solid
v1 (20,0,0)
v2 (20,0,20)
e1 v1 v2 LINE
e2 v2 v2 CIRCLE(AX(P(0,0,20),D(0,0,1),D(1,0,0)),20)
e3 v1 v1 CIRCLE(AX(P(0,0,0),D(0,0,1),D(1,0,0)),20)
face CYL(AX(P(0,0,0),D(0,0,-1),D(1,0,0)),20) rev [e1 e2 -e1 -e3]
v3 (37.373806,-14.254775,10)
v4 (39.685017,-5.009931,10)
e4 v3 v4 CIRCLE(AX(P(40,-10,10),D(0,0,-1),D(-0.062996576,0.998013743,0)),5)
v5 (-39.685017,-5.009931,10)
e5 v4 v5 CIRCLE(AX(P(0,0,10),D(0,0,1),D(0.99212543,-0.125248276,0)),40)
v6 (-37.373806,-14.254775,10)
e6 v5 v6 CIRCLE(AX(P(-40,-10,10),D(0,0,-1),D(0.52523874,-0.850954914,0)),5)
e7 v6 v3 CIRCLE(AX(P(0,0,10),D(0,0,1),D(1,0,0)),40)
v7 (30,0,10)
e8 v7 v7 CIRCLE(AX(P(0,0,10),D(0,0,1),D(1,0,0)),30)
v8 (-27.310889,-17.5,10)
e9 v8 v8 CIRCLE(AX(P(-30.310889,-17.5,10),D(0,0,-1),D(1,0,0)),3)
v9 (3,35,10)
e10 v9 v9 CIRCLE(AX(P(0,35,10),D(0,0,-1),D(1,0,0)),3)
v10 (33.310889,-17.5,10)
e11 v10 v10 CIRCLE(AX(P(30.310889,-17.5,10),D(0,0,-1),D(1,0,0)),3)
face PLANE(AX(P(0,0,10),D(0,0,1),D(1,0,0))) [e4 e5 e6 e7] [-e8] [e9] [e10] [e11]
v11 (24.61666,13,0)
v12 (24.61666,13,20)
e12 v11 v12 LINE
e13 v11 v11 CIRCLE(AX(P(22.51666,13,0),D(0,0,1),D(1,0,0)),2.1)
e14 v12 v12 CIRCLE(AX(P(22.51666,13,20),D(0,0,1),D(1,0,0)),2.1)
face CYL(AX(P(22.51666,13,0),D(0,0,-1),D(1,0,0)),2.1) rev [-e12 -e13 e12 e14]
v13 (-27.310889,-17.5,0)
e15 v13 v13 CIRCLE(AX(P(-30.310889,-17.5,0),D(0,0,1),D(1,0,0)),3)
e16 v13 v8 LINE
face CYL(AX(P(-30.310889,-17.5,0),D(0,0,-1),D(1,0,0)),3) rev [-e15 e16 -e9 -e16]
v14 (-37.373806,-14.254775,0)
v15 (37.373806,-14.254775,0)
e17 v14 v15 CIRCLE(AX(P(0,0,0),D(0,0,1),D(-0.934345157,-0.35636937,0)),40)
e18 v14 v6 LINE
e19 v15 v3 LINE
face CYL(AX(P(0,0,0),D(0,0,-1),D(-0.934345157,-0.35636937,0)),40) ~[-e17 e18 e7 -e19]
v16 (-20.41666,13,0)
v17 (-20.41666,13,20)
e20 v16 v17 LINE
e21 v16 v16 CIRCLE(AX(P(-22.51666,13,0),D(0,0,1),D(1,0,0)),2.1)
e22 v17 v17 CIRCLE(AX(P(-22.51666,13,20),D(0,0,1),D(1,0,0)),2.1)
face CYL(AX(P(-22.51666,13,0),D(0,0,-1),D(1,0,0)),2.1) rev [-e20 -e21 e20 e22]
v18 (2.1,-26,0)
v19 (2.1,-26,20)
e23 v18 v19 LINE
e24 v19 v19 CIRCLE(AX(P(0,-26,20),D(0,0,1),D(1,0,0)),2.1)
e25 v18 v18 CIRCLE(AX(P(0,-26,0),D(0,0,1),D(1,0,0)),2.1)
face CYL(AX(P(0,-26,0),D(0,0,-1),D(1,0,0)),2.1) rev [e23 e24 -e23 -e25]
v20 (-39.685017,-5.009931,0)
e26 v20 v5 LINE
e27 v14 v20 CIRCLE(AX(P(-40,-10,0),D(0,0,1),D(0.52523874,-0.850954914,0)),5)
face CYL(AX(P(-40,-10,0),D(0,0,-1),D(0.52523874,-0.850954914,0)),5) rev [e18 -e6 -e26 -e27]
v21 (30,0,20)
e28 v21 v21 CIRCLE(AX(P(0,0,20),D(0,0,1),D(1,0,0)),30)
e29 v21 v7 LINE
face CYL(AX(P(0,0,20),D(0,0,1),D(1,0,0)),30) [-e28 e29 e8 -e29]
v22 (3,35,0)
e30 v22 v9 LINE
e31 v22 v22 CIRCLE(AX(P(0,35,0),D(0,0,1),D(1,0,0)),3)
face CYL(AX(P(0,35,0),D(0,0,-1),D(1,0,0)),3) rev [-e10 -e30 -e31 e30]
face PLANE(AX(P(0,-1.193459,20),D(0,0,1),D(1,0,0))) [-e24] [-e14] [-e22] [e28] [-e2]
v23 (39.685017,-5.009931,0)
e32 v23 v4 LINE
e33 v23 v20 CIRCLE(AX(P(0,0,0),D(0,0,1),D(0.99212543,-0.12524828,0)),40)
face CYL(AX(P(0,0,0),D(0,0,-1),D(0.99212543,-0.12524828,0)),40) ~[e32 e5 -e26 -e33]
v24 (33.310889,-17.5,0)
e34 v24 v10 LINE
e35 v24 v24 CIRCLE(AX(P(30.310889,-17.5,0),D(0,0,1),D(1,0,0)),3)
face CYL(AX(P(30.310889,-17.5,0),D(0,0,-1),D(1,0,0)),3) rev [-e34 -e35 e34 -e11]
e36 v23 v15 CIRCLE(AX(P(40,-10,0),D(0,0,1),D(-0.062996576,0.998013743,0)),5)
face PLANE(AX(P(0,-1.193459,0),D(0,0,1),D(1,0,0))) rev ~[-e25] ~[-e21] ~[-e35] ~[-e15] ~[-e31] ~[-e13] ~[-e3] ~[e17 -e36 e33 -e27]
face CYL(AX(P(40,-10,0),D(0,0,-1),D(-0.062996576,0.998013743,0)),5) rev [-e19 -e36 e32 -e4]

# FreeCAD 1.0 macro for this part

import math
import FreeCAD as App
import Part
import Sketcher

V = App.Vector
Q = App.Units.Quantity

doc = App.newDocument("Part")
body = doc.addObject("PartDesign::Body", "Body")

sketch1 = body.newObject("Sketcher::SketchObject", "Sketch")
sketch1.AttachmentSupport = (doc.getObject("XY_Plane"), [""])
sketch1.MapMode = "FlatFace"
sketch1.addGeometry(Part.ArcOfCircle(Part.Circle(V(0, 0, 0), V(0, 0, 1), 40), math.radians(-159), math.radians(-21)), False)
sketch1.addGeometry(Part.ArcOfCircle(Part.Circle(V(40, -10, 0), V(0, 0, 1), 5), math.radians(94), math.radians(238)), False)
sketch1.addGeometry(Part.ArcOfCircle(Part.Circle(V(0, 0, 0), V(0, 0, 1), 40), math.radians(-7), math.radians(187)), False)
sketch1.addGeometry(Part.ArcOfCircle(Part.Circle(V(-40, -10, 0), V(0, 0, 1), 5), math.radians(-58), math.radians(86)), False)
sketch1.addGeometry(Part.Circle(V(-30.3, -17.5, 0), V(0, 0, 1), 3), False)
sketch1.addGeometry(Part.Circle(V(0, -26, 0), V(0, 0, 1), 2.1), False)
sketch1.addGeometry(Part.Circle(V(30.3, -17.5, 0), V(0, 0, 1), 3), False)
sketch1.addGeometry(Part.Circle(V(0, 0, 0), V(0, 0, 1), 20), False)
sketch1.addGeometry(Part.Circle(V(-22.5, 13, 0), V(0, 0, 1), 2.1), False)
sketch1.addGeometry(Part.Circle(V(22.5, 13, 0), V(0, 0, 1), 2.1), False)
sketch1.addGeometry(Part.Circle(V(0, 35, 0), V(0, 0, 1), 3), False)
sketch1.addConstraint(Sketcher.Constraint("Coincident", 0, 2, 1, 2))
sketch1.addConstraint(Sketcher.Constraint("Coincident", 1, 1, 2, 1))
sketch1.addConstraint(Sketcher.Constraint("Coincident", 2, 2, 3, 2))
sketch1.addConstraint(Sketcher.Constraint("Coincident", 3, 1, 0, 1))
sketch1.addConstraint(Sketcher.Constraint("Coincident", 0, 3, -1, 1))
sketch1.addConstraint(Sketcher.Constraint("Coincident", 2, 3, -1, 1))
sketch1.addConstraint(Sketcher.Constraint("Coincident", 7, 3, -1, 1))
sketch1.addConstraint(Sketcher.Constraint("Equal", 0, 2))
sketch1.addConstraint(Sketcher.Constraint("Equal", 1, 3))
sketch1.addConstraint(Sketcher.Constraint("Equal", 4, 6))
sketch1.addConstraint(Sketcher.Constraint("Equal", 5, 8))
sketch1.addConstraint(Sketcher.Constraint("Equal", 8, 9))
sketch1.addConstraint(Sketcher.Constraint("Equal", 6, 10))
sketch1.addConstraint(Sketcher.Constraint("Symmetric", 1, 3, 3, 3, -2))
sketch1.addConstraint(Sketcher.Constraint("Symmetric", 4, 3, 6, 3, -2))
sketch1.addConstraint(Sketcher.Constraint("Symmetric", 8, 3, 9, 3, -2))
sketch1.addConstraint(Sketcher.Constraint("PointOnObject", 5, 3, -2))
sketch1.addConstraint(Sketcher.Constraint("PointOnObject", 10, 3, -2))
sketch1.addConstraint(Sketcher.Constraint("Diameter", 4, Q("6 mm")))
sketch1.addConstraint(Sketcher.Constraint("Diameter", 7, Q("40 mm")))
sketch1.addConstraint(Sketcher.Constraint("Radius", 0, Q("40 mm")))
sketch1.addConstraint(Sketcher.Constraint("Radius", 1, Q("5 mm")))
sketch1.addConstraint(Sketcher.Constraint("Diameter", 5, Q("4.2 mm")))
sketch1.addConstraint(Sketcher.Constraint("DistanceX", -1, 1, 1, 3, Q("40 mm")))
sketch1.addConstraint(Sketcher.Constraint("DistanceY", 1, 3, -1, 1, Q("10 mm")))
sketch1.addConstraint(Sketcher.Constraint("DistanceY", 5, 3, -1, 1, Q("26 mm")))
sketch1.addConstraint(Sketcher.Constraint("DistanceY", -1, 1, 8, 3, Q("13 mm")))
sketch1.addConstraint(Sketcher.Constraint("DistanceY", -1, 1, 10, 3, Q("35 mm")))
sketch1.addConstraint(Sketcher.Constraint("DistanceY", 4, 3, -1, 1, Q("17.5 mm")))
sketch1.addConstraint(Sketcher.Constraint("DistanceX", 4, 3, -1, 1, Q("30.310889 mm")))
sketch1.addConstraint(Sketcher.Constraint("DistanceX", 8, 3, -1, 1, Q("22.51666 mm")))
pad1 = body.newObject("PartDesign::Pad", "Pad")
pad1.Profile = sketch1
pad1.Length = 20

sketch2 = body.newObject("Sketcher::SketchObject", "Sketch001")
sketch2.AttachmentSupport = (doc.getObject("XY_Plane"), [""])
sketch2.MapMode = "FlatFace"
sketch2.AttachmentOffset = App.Placement(V(0, 0, 20), App.Rotation())
sketch2.addGeometry(Part.Circle(V(0, 0, 0), V(0, 0, 1), 40), False)
sketch2.addGeometry(Part.Circle(V(0, 0, 0), V(0, 0, 1), 30), False)
sketch2.addConstraint(Sketcher.Constraint("Coincident", 0, 3, -1, 1))
sketch2.addConstraint(Sketcher.Constraint("Coincident", 1, 3, -1, 1))
sketch2.addConstraint(Sketcher.Constraint("Diameter", 0, Q("80 mm")))
sketch2.addConstraint(Sketcher.Constraint("Diameter", 1, Q("60 mm")))
pocket1 = body.newObject("PartDesign::Pocket", "Pocket")
pocket1.Profile = sketch2
pocket1.Length = 10

doc.recompute()
